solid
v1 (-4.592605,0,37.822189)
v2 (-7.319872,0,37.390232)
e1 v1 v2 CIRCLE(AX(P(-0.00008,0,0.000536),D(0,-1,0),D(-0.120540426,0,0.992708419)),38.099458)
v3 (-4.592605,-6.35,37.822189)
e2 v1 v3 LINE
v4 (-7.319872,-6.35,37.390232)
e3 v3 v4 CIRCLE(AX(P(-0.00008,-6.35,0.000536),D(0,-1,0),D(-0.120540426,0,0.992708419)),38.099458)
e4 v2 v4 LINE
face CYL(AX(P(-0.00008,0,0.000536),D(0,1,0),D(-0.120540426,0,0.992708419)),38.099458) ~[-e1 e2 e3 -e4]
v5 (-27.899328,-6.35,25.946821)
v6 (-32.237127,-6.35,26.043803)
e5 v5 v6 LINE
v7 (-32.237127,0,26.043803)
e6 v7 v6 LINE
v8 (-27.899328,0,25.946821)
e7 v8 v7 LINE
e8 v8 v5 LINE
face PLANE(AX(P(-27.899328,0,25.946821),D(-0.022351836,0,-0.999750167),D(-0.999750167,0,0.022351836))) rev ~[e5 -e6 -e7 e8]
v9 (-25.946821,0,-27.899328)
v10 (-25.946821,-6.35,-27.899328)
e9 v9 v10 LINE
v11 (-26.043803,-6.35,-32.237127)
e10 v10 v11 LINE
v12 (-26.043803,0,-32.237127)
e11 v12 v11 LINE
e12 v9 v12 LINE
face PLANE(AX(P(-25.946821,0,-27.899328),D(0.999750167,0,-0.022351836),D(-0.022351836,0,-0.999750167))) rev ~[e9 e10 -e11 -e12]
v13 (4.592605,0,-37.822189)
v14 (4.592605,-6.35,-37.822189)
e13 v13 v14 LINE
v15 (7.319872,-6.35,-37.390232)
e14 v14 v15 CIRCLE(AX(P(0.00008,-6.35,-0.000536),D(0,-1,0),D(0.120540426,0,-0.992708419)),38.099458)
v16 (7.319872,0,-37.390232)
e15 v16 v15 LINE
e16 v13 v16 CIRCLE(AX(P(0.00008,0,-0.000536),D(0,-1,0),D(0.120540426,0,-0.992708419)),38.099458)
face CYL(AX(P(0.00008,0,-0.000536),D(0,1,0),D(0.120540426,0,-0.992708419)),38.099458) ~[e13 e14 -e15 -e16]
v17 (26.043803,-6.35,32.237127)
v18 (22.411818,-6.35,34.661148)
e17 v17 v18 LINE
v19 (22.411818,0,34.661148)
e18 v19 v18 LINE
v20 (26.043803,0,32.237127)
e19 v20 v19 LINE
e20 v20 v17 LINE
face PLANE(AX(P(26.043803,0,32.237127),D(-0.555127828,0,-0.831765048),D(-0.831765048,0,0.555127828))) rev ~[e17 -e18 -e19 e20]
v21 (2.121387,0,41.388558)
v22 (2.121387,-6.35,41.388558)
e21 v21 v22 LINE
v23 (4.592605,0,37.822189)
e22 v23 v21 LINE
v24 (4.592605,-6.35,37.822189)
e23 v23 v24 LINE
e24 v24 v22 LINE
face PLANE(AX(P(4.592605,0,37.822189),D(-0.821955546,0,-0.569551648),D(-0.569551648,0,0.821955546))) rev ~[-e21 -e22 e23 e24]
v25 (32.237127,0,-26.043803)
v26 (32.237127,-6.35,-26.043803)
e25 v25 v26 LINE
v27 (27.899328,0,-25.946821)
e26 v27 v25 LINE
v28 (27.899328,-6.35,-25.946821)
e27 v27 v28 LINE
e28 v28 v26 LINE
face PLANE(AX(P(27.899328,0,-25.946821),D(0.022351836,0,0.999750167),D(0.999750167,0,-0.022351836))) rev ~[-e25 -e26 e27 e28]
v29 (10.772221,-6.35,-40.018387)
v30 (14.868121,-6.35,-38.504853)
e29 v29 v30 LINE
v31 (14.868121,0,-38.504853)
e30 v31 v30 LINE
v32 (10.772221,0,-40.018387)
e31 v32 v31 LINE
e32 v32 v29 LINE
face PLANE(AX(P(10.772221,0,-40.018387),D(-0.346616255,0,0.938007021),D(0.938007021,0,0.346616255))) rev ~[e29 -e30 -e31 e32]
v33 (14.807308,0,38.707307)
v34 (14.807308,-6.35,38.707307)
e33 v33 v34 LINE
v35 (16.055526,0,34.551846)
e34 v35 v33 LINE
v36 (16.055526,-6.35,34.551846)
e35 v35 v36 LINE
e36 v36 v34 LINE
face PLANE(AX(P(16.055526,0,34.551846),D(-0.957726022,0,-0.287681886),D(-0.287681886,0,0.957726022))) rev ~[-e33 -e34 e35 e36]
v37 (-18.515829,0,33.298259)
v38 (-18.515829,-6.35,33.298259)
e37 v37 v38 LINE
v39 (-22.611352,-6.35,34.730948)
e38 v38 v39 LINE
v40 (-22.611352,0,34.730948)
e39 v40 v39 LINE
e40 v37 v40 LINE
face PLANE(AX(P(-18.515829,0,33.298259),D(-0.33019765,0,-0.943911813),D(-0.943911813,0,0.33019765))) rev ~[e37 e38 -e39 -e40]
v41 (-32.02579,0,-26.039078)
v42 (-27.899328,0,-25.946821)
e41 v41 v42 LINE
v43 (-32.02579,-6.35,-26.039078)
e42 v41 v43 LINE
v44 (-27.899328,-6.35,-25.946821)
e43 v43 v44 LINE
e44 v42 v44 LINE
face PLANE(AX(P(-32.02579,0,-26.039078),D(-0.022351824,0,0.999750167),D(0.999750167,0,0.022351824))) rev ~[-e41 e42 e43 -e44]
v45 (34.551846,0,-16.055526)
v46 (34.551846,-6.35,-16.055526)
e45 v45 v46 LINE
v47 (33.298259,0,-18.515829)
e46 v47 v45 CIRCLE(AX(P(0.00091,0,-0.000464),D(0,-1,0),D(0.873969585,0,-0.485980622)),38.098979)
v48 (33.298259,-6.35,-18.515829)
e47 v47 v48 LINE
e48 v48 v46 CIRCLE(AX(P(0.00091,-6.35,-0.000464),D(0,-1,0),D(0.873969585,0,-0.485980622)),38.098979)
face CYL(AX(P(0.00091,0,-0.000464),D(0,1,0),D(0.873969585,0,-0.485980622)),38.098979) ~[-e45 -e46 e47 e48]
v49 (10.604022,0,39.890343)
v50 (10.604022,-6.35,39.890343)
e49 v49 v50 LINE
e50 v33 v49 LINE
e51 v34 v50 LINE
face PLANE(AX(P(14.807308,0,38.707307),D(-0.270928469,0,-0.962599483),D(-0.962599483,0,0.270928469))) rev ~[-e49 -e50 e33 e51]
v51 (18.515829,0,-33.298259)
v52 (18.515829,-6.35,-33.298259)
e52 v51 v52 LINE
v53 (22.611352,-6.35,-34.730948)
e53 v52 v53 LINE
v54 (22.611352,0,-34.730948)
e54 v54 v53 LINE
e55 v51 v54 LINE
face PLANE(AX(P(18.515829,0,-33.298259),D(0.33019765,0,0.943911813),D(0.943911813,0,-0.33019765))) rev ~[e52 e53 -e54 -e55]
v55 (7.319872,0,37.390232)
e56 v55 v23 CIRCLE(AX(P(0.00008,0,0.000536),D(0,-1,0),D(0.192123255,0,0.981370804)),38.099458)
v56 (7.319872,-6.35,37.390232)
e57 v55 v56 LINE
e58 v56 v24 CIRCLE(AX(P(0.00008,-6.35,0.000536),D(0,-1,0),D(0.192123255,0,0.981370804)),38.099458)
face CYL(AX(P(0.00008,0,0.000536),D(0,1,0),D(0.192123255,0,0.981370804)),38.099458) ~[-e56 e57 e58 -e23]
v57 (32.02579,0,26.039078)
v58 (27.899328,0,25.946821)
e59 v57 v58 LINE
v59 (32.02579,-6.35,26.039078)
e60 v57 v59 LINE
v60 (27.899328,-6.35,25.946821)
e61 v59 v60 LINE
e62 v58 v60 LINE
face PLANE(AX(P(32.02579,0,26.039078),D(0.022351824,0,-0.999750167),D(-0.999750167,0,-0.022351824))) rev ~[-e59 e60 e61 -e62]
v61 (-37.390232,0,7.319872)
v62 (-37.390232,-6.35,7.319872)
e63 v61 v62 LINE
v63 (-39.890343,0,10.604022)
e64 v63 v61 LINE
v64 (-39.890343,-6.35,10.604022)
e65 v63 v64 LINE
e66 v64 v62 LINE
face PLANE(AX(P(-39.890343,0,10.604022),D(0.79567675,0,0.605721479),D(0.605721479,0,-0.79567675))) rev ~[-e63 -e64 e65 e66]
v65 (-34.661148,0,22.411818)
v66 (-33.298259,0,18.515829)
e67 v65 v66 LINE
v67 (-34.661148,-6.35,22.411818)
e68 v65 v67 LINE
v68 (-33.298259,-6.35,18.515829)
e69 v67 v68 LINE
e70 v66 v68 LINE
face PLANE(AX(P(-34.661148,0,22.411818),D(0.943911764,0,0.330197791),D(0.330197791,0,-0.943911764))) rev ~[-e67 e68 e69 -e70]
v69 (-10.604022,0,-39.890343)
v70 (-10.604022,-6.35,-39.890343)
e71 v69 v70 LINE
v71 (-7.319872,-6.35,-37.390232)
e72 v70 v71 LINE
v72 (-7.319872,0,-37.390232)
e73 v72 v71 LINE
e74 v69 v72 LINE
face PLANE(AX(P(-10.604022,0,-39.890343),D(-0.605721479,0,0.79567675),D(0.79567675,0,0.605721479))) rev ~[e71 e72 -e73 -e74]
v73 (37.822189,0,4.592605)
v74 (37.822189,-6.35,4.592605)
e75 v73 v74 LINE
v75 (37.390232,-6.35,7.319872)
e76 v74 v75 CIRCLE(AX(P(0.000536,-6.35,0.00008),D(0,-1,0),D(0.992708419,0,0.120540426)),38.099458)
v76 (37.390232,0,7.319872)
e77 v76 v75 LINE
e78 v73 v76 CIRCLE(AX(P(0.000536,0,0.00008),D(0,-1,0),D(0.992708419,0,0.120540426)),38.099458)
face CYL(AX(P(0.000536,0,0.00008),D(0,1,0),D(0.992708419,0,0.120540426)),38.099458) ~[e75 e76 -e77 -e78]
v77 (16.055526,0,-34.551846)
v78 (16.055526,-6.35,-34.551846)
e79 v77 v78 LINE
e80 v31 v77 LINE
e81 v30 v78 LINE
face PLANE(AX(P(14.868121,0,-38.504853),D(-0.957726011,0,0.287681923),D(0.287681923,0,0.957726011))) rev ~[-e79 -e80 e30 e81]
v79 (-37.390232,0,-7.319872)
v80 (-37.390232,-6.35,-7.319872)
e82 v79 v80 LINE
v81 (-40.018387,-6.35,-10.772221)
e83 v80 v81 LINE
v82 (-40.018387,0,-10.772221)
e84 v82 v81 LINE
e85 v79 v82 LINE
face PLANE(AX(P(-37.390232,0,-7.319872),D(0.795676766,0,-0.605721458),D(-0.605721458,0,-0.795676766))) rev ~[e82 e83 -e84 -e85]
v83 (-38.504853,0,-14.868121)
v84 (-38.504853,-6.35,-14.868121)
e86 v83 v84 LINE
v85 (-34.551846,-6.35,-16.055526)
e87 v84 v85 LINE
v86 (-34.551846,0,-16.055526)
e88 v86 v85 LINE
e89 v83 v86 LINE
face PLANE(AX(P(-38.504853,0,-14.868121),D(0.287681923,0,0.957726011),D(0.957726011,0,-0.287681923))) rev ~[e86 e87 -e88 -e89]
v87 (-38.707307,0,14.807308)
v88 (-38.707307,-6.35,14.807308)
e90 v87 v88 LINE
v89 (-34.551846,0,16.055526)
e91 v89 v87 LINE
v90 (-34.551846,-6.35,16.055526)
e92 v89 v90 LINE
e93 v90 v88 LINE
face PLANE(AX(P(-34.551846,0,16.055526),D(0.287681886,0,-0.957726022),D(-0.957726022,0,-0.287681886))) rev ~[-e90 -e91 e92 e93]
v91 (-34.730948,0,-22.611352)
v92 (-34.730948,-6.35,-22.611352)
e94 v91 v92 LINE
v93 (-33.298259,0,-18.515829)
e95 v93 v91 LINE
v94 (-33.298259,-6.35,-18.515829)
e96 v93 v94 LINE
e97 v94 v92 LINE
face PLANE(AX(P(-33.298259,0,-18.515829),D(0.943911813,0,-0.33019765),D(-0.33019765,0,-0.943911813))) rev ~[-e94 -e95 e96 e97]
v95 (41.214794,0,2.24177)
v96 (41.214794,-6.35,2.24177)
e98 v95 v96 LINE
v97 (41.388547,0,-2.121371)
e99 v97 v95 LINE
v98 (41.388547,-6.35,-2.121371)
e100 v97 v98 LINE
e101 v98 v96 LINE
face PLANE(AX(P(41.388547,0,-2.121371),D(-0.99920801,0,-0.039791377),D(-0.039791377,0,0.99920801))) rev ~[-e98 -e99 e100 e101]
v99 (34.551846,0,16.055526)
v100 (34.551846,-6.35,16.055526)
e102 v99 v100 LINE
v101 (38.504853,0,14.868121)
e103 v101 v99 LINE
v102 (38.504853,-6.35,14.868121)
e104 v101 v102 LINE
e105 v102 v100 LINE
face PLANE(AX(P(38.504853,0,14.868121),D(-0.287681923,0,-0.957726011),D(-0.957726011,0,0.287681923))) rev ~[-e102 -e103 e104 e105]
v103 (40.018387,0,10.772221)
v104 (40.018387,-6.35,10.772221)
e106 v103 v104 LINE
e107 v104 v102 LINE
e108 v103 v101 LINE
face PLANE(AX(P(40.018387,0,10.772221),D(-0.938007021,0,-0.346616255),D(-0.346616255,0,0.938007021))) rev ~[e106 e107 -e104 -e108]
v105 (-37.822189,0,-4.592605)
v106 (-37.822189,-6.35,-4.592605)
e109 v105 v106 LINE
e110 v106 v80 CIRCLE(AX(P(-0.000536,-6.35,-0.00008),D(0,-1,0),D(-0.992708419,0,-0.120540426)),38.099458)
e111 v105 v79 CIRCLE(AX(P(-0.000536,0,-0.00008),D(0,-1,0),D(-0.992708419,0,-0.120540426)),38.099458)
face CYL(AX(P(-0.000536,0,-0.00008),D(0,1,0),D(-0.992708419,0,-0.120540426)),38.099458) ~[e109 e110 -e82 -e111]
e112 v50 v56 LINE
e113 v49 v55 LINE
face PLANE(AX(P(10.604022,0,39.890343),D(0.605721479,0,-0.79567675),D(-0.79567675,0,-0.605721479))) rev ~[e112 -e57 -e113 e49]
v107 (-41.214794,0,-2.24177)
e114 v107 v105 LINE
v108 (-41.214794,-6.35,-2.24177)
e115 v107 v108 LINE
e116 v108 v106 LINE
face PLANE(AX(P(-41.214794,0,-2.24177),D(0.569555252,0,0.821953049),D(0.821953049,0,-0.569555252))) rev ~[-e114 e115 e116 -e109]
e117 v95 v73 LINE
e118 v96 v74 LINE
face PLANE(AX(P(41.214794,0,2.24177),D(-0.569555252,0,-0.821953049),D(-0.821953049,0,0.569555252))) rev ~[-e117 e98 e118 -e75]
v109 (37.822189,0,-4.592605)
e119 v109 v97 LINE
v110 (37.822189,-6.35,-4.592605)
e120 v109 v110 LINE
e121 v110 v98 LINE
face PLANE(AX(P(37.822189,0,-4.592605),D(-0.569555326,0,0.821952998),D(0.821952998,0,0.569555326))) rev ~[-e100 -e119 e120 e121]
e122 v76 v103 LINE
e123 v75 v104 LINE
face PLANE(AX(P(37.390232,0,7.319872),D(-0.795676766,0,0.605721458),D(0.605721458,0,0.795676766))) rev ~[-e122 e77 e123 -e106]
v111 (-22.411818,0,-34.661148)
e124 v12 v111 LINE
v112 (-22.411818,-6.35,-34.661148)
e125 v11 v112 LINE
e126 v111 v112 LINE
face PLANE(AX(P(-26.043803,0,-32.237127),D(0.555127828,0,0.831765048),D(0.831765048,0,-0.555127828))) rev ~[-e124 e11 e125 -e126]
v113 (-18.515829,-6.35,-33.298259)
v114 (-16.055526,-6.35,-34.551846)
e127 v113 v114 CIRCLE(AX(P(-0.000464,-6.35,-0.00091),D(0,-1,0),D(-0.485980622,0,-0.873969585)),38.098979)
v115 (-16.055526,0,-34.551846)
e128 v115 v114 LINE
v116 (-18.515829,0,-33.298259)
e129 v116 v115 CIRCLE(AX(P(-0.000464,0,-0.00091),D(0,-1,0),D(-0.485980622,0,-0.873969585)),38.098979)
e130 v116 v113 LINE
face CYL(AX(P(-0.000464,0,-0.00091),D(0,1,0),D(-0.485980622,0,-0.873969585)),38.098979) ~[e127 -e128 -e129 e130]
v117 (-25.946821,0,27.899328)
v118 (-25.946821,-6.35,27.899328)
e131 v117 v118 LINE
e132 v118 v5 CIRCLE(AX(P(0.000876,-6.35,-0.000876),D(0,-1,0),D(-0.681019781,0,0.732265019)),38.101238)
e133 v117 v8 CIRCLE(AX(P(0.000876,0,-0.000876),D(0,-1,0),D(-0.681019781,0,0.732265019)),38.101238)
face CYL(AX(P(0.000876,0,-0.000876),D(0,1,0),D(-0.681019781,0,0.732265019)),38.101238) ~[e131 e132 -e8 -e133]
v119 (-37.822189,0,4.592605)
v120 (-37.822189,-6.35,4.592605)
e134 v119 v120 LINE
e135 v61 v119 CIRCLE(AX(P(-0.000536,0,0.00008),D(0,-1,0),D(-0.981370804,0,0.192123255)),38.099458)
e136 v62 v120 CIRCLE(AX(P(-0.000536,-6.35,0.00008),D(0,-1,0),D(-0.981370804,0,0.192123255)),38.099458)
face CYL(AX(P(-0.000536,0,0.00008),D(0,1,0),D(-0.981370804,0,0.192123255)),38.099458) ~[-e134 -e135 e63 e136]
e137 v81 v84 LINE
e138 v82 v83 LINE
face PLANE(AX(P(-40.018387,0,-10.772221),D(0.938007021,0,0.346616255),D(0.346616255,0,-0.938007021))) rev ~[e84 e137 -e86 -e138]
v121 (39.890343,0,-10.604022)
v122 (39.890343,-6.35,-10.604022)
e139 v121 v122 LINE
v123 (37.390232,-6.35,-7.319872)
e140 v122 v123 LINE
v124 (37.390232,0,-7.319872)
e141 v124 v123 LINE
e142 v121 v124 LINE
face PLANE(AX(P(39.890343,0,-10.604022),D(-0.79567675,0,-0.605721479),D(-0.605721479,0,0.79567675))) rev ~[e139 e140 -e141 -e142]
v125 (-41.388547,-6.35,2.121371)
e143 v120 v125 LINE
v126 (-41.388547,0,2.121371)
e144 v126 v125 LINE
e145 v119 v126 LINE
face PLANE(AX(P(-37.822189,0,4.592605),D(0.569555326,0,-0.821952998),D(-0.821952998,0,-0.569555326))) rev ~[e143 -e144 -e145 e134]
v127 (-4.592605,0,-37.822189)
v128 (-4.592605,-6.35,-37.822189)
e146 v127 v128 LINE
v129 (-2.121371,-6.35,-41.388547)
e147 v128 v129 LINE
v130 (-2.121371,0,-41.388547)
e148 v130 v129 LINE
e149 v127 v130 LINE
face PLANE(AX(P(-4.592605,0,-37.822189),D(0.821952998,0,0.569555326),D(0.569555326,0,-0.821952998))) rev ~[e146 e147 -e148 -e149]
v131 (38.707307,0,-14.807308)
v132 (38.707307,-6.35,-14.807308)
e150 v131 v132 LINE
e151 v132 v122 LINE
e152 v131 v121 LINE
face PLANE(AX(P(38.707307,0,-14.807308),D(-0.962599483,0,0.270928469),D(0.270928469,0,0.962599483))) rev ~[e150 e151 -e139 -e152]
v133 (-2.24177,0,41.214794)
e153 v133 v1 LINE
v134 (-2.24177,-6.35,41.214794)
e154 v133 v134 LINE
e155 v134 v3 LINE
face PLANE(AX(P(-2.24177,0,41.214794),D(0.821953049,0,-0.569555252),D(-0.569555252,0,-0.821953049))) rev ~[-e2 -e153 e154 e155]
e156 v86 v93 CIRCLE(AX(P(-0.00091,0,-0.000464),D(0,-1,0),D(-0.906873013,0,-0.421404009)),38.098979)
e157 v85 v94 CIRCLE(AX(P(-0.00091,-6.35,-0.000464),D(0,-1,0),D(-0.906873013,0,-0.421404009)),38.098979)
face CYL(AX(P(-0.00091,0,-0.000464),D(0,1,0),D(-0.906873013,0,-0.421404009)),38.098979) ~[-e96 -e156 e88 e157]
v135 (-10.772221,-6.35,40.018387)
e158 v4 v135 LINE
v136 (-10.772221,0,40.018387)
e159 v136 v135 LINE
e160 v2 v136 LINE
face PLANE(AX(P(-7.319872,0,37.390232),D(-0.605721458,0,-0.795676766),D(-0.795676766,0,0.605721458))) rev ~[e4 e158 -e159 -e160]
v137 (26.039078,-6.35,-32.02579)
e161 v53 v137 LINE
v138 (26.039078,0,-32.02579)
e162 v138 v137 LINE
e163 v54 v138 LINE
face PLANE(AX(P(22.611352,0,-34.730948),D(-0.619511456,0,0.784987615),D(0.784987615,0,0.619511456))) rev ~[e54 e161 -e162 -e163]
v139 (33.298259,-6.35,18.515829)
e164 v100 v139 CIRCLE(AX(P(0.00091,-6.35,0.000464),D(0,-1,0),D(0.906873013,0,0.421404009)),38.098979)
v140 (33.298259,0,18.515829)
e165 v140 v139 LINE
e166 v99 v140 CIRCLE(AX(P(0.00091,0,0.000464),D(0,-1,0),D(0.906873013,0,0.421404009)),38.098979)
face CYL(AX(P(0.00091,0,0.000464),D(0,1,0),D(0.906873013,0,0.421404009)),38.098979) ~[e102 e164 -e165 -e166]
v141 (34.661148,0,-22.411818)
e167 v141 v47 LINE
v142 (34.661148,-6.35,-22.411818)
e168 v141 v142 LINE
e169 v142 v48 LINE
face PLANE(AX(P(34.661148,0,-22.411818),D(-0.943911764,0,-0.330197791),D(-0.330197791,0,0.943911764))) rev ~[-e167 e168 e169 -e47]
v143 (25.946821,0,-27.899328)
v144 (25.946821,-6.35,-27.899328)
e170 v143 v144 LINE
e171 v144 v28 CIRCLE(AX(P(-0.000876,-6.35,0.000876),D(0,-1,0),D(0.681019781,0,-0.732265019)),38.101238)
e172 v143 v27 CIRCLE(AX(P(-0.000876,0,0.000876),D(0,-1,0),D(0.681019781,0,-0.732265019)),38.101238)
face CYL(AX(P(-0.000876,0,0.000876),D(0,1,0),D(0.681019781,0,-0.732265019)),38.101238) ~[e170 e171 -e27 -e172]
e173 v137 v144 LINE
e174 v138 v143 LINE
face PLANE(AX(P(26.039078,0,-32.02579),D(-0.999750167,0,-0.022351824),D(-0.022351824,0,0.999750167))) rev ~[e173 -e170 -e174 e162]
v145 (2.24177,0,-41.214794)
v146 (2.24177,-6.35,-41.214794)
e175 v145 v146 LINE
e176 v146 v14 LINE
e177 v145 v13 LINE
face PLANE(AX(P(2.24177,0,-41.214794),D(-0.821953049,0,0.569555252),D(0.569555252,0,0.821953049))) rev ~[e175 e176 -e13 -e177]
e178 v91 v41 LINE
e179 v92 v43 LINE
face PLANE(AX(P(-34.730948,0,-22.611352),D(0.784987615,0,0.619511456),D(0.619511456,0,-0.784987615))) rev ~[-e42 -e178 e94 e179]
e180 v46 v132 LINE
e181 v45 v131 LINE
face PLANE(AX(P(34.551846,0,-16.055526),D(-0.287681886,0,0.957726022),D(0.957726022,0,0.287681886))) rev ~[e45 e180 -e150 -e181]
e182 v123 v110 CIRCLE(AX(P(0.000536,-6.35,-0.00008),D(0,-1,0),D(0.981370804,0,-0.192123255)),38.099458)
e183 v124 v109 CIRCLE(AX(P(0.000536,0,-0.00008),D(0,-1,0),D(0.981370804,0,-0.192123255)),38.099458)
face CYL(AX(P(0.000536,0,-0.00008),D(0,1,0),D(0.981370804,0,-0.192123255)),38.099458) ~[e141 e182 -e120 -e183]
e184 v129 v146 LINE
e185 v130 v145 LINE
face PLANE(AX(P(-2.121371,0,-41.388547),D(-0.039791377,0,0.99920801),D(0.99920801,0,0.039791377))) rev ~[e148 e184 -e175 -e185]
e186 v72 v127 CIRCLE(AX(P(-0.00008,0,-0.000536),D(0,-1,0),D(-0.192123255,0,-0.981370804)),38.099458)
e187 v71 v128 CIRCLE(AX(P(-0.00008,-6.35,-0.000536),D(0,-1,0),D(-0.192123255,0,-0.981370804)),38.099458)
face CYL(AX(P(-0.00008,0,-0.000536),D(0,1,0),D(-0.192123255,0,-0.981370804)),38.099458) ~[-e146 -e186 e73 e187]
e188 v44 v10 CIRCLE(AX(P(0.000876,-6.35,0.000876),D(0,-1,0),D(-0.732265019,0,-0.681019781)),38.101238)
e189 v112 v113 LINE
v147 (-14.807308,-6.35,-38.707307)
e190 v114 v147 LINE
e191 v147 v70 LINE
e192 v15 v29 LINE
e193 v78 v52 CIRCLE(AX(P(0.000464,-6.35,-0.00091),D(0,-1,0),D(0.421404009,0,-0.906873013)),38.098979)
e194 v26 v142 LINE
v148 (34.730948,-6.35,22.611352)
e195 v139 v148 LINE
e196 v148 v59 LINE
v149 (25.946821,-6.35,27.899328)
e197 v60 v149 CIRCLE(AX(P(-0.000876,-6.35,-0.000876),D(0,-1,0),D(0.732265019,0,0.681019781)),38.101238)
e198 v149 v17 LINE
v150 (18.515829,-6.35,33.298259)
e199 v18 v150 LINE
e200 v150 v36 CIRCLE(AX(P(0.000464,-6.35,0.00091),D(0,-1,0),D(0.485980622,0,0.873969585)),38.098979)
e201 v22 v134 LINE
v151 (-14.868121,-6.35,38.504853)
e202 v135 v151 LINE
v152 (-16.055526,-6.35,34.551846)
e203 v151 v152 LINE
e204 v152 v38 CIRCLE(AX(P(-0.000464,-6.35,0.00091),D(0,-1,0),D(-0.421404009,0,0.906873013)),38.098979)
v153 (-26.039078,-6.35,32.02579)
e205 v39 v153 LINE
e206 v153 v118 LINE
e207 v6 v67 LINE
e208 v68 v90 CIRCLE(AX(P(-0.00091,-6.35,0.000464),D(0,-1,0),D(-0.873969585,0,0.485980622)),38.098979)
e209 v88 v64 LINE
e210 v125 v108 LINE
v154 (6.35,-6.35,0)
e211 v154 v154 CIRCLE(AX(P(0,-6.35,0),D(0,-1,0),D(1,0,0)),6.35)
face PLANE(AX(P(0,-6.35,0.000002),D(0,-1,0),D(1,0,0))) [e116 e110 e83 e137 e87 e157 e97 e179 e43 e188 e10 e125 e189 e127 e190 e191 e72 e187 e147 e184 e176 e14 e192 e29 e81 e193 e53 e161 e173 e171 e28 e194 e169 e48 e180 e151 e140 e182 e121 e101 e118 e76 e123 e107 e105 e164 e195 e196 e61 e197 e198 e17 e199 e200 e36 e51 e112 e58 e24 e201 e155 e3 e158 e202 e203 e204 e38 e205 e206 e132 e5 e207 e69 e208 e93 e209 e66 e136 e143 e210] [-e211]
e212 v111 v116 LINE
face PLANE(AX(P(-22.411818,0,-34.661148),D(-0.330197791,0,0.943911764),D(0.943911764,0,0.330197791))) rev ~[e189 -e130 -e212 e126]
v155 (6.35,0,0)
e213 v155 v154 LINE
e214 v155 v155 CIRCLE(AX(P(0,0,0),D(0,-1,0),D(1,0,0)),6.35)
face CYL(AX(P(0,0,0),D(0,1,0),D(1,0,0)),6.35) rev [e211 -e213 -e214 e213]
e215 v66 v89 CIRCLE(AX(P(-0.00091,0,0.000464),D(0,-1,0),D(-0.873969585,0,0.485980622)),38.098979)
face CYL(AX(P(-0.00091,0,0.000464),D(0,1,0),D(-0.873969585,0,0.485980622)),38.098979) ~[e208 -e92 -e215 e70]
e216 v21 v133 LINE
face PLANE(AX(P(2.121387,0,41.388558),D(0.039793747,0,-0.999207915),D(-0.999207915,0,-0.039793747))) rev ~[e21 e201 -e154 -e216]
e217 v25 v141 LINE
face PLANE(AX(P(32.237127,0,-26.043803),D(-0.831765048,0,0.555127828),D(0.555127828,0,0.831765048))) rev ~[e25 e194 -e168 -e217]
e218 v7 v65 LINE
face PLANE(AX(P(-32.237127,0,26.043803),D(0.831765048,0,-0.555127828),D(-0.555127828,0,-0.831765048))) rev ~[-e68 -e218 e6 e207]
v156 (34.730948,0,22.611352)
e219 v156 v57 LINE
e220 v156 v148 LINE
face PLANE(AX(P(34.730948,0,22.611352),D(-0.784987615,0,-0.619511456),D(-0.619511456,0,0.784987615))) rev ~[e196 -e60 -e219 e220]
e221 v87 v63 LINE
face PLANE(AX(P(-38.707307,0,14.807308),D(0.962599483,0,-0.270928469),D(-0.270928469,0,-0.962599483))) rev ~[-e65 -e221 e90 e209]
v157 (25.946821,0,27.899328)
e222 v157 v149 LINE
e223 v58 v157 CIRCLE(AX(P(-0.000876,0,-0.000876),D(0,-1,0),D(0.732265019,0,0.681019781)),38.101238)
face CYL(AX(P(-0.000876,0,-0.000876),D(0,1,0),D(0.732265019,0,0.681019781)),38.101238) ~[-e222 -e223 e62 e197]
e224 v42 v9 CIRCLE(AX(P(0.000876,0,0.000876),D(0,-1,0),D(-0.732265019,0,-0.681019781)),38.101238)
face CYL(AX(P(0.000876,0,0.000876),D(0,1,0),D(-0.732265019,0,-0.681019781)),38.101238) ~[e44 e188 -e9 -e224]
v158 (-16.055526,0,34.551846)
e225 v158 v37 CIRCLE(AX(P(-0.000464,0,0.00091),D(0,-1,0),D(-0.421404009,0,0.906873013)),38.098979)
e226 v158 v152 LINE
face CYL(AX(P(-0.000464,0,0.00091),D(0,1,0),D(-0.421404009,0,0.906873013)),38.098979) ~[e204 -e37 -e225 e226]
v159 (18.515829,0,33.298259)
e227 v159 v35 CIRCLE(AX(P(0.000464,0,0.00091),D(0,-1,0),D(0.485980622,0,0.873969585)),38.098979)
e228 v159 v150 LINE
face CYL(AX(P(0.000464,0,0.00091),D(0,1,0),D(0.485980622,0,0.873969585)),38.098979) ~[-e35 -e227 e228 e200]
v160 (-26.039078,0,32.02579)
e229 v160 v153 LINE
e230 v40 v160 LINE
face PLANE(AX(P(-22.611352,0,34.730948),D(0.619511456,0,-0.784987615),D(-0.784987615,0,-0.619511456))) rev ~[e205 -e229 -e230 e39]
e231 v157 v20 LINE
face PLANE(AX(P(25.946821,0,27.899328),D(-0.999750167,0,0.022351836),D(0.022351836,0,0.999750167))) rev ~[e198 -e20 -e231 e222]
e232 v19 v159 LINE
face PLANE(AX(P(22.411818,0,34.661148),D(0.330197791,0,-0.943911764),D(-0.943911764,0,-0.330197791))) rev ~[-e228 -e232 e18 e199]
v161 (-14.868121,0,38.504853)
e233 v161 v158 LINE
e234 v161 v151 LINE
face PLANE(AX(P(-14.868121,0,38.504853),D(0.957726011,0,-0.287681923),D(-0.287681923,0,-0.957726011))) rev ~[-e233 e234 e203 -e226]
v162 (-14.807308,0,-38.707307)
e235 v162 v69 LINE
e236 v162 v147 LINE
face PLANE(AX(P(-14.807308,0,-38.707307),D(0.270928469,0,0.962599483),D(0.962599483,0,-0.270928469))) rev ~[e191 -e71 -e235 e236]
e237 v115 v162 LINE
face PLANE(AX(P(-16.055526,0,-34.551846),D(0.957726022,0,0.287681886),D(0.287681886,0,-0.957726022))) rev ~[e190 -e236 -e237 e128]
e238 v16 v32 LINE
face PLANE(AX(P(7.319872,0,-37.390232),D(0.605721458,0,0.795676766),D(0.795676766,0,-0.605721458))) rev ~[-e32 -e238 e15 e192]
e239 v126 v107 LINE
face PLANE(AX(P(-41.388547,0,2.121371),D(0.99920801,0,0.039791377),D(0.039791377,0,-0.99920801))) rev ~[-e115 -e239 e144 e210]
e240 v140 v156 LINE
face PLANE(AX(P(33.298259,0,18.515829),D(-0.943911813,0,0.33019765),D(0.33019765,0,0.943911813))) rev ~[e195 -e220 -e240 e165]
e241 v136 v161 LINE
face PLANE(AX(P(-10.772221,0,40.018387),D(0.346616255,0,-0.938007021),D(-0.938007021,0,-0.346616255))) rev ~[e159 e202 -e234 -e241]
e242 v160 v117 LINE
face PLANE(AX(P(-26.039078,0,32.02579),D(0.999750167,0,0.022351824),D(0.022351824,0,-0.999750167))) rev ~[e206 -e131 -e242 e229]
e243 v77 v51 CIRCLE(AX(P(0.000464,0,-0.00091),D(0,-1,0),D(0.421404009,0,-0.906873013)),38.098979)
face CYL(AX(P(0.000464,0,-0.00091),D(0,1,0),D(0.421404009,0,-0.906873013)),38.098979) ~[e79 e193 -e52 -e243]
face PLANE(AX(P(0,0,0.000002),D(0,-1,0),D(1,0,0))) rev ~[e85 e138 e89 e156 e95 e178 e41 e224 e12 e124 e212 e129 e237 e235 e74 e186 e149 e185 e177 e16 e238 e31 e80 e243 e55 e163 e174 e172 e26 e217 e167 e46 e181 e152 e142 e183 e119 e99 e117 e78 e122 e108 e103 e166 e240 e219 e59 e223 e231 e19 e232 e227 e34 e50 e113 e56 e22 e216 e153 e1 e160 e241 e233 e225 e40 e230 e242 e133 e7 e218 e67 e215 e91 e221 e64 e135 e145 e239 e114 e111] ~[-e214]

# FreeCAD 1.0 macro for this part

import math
import FreeCAD as App
import Part
import Sketcher
from FreeCAD import Vector
Q = App.Units.Quantity

doc = App.newDocument("Part")
body = doc.addObject("PartDesign::Body", "Body")

sketch1 = doc.addObject("Sketcher::SketchObject", "Sketch")
body.addObject(sketch1)
sketch1.AttachmentSupport = (doc.XZ_Plane, [""])
sketch1.MapMode = "FlatFace"
sketch1.addGeometry(Part.LineSegment(Vector(-2.24177, 41.214794, 0), Vector(-4.592605, 37.822189, 0)), False)
sketch1.addGeometry(Part.ArcOfCircle(Part.Circle(Vector(-0.00008, 0.000536, 0), Vector(0, 0, 1), 38.099458), math.radians(96.923293), math.radians(101.076721)), False)
sketch1.addGeometry(Part.LineSegment(Vector(-7.319872, 37.390232, 0), Vector(-10.772221, 40.018387, 0)), False)
sketch1.addGeometry(Part.LineSegment(Vector(-10.772221, 40.018387, 0), Vector(-14.868121, 38.504853, 0)), False)
sketch1.addGeometry(Part.LineSegment(Vector(-14.868121, 38.504853, 0), Vector(-16.055526, 34.551846, 0)), False)
sketch1.addGeometry(Part.ArcOfCircle(Part.Circle(Vector(-0.000464, 0.00091, 0), Vector(0, 0, 1), 38.098979), math.radians(114.92326), math.radians(119.07674)), False)
sketch1.addGeometry(Part.LineSegment(Vector(-18.515829, 33.298259, 0), Vector(-22.611352, 34.730948, 0)), False)
sketch1.addGeometry(Part.LineSegment(Vector(-22.611352, 34.730948, 0), Vector(-26.039078, 32.02579, 0)), False)
sketch1.addGeometry(Part.LineSegment(Vector(-26.039078, 32.02579, 0), Vector(-25.946821, 27.899328, 0)), False)
sketch1.addGeometry(Part.ArcOfCircle(Part.Circle(Vector(0.000876, -0.000876, 0), Vector(0, 0, 1), 38.101238), math.radians(132.923384), math.radians(137.076616)), False)
sketch1.addGeometry(Part.LineSegment(Vector(-27.899328, 25.946821, 0), Vector(-32.237127, 26.043803, 0)), False)
sketch1.addGeometry(Part.LineSegment(Vector(-32.237127, 26.043803, 0), Vector(-34.661148, 22.411818, 0)), False)
sketch1.addGeometry(Part.LineSegment(Vector(-34.661148, 22.411818, 0), Vector(-33.298259, 18.515829, 0)), False)
sketch1.addGeometry(Part.ArcOfCircle(Part.Circle(Vector(-0.00091, 0.000464, 0), Vector(0, 0, 1), 38.098979), math.radians(150.92326), math.radians(155.07674)), False)
sketch1.addGeometry(Part.LineSegment(Vector(-34.551846, 16.055526, 0), Vector(-38.707307, 14.807308, 0)), False)
sketch1.addGeometry(Part.LineSegment(Vector(-38.707307, 14.807308, 0), Vector(-39.890343, 10.604022, 0)), False)
sketch1.addGeometry(Part.LineSegment(Vector(-39.890343, 10.604022, 0), Vector(-37.390232, 7.319872, 0)), False)
sketch1.addGeometry(Part.ArcOfCircle(Part.Circle(Vector(-0.000536, 0.00008, 0), Vector(0, 0, 1), 38.099458), math.radians(168.923279), math.radians(173.076707)), False)
sketch1.addGeometry(Part.LineSegment(Vector(-37.822189, 4.592605, 0), Vector(-41.388547, 2.121371, 0)), False)
sketch1.addGeometry(Part.LineSegment(Vector(-41.388547, 2.121371, 0), Vector(-41.214794, -2.24177, 0)), False)
sketch1.addGeometry(Part.LineSegment(Vector(-41.214794, -2.24177, 0), Vector(-37.822189, -4.592605, 0)), False)
sketch1.addGeometry(Part.ArcOfCircle(Part.Circle(Vector(-0.000536, -0.00008, 0), Vector(0, 0, 1), 38.099458), math.radians(-173.076707), math.radians(-168.923279)), False)
sketch1.addGeometry(Part.LineSegment(Vector(-37.390232, -7.319872, 0), Vector(-40.018387, -10.772221, 0)), False)
sketch1.addGeometry(Part.LineSegment(Vector(-40.018387, -10.772221, 0), Vector(-38.504853, -14.868121, 0)), False)
sketch1.addGeometry(Part.LineSegment(Vector(-38.504853, -14.868121, 0), Vector(-34.551846, -16.055526, 0)), False)
sketch1.addGeometry(Part.ArcOfCircle(Part.Circle(Vector(-0.00091, -0.000464, 0), Vector(0, 0, 1), 38.098979), math.radians(-155.07674), math.radians(-150.92326)), False)
sketch1.addGeometry(Part.LineSegment(Vector(-33.298259, -18.515829, 0), Vector(-34.730948, -22.611352, 0)), False)
sketch1.addGeometry(Part.LineSegment(Vector(-34.730948, -22.611352, 0), Vector(-32.02579, -26.039078, 0)), False)
sketch1.addGeometry(Part.LineSegment(Vector(-32.02579, -26.039078, 0), Vector(-27.899328, -25.946821, 0)), False)
sketch1.addGeometry(Part.ArcOfCircle(Part.Circle(Vector(0.000876, 0.000876, 0), Vector(0, 0, 1), 38.101238), math.radians(-137.076616), math.radians(-132.923384)), False)
sketch1.addGeometry(Part.LineSegment(Vector(-25.946821, -27.899328, 0), Vector(-26.043803, -32.237127, 0)), False)
sketch1.addGeometry(Part.LineSegment(Vector(-26.043803, -32.237127, 0), Vector(-22.411818, -34.661148, 0)), False)
sketch1.addGeometry(Part.LineSegment(Vector(-22.411818, -34.661148, 0), Vector(-18.515829, -33.298259, 0)), False)
sketch1.addGeometry(Part.ArcOfCircle(Part.Circle(Vector(-0.000464, -0.00091, 0), Vector(0, 0, 1), 38.098979), math.radians(-119.07674), math.radians(-114.92326)), False)
sketch1.addGeometry(Part.LineSegment(Vector(-16.055526, -34.551846, 0), Vector(-14.807308, -38.707307, 0)), False)
sketch1.addGeometry(Part.LineSegment(Vector(-14.807308, -38.707307, 0), Vector(-10.604022, -39.890343, 0)), False)
sketch1.addGeometry(Part.LineSegment(Vector(-10.604022, -39.890343, 0), Vector(-7.319872, -37.390232, 0)), False)
sketch1.addGeometry(Part.ArcOfCircle(Part.Circle(Vector(-0.00008, -0.000536, 0), Vector(0, 0, 1), 38.099458), math.radians(-101.076721), math.radians(-96.923293)), False)
sketch1.addGeometry(Part.LineSegment(Vector(-4.592605, -37.822189, 0), Vector(-2.121371, -41.388547, 0)), False)
sketch1.addGeometry(Part.LineSegment(Vector(-2.121371, -41.388547, 0), Vector(2.24177, -41.214794, 0)), False)
sketch1.addGeometry(Part.LineSegment(Vector(2.24177, -41.214794, 0), Vector(4.592605, -37.822189, 0)), False)
sketch1.addGeometry(Part.ArcOfCircle(Part.Circle(Vector(0.00008, -0.000536, 0), Vector(0, 0, 1), 38.099458), math.radians(-83.076707), math.radians(-78.923279)), False)
sketch1.addGeometry(Part.LineSegment(Vector(7.319872, -37.390232, 0), Vector(10.772221, -40.018387, 0)), False)
sketch1.addGeometry(Part.LineSegment(Vector(10.772221, -40.018387, 0), Vector(14.868121, -38.504853, 0)), False)
sketch1.addGeometry(Part.LineSegment(Vector(14.868121, -38.504853, 0), Vector(16.055526, -34.551846, 0)), False)
sketch1.addGeometry(Part.ArcOfCircle(Part.Circle(Vector(0.000464, -0.00091, 0), Vector(0, 0, 1), 38.098979), math.radians(-65.07674), math.radians(-60.92326)), False)
sketch1.addGeometry(Part.LineSegment(Vector(18.515829, -33.298259, 0), Vector(22.611352, -34.730948, 0)), False)
sketch1.addGeometry(Part.LineSegment(Vector(22.611352, -34.730948, 0), Vector(26.039078, -32.02579, 0)), False)
sketch1.addGeometry(Part.LineSegment(Vector(26.039078, -32.02579, 0), Vector(25.946821, -27.899328, 0)), False)
sketch1.addGeometry(Part.ArcOfCircle(Part.Circle(Vector(-0.000876, 0.000876, 0), Vector(0, 0, 1), 38.101238), math.radians(-47.076616), math.radians(-42.923384)), False)
sketch1.addGeometry(Part.LineSegment(Vector(27.899328, -25.946821, 0), Vector(32.237127, -26.043803, 0)), False)
sketch1.addGeometry(Part.LineSegment(Vector(32.237127, -26.043803, 0), Vector(34.661148, -22.411818, 0)), False)
sketch1.addGeometry(Part.LineSegment(Vector(34.661148, -22.411818, 0), Vector(33.298259, -18.515829, 0)), False)
sketch1.addGeometry(Part.ArcOfCircle(Part.Circle(Vector(0.00091, -0.000464, 0), Vector(0, 0, 1), 38.098979), math.radians(-29.07674), math.radians(-24.92326)), False)
sketch1.addGeometry(Part.LineSegment(Vector(34.551846, -16.055526, 0), Vector(38.707307, -14.807308, 0)), False)
sketch1.addGeometry(Part.LineSegment(Vector(38.707307, -14.807308, 0), Vector(39.890343, -10.604022, 0)), False)
sketch1.addGeometry(Part.LineSegment(Vector(39.890343, -10.604022, 0), Vector(37.390232, -7.319872, 0)), False)
sketch1.addGeometry(Part.ArcOfCircle(Part.Circle(Vector(0.000536, -0.00008, 0), Vector(0, 0, 1), 38.099458), math.radians(-11.076721), math.radians(-6.923293)), False)
sketch1.addGeometry(Part.LineSegment(Vector(37.822189, -4.592605, 0), Vector(41.388547, -2.121371, 0)), False)
sketch1.addGeometry(Part.LineSegment(Vector(41.388547, -2.121371, 0), Vector(41.214794, 2.24177, 0)), False)
sketch1.addGeometry(Part.LineSegment(Vector(41.214794, 2.24177, 0), Vector(37.822189, 4.592605, 0)), False)
sketch1.addGeometry(Part.ArcOfCircle(Part.Circle(Vector(0.000536, 0.00008, 0), Vector(0, 0, 1), 38.099458), math.radians(6.923293), math.radians(11.076721)), False)
sketch1.addGeometry(Part.LineSegment(Vector(37.390232, 7.319872, 0), Vector(40.018387, 10.772221, 0)), False)
sketch1.addGeometry(Part.LineSegment(Vector(40.018387, 10.772221, 0), Vector(38.504853, 14.868121, 0)), False)
sketch1.addGeometry(Part.LineSegment(Vector(38.504853, 14.868121, 0), Vector(34.551846, 16.055526, 0)), False)
sketch1.addGeometry(Part.ArcOfCircle(Part.Circle(Vector(0.00091, 0.000464, 0), Vector(0, 0, 1), 38.098979), math.radians(24.92326), math.radians(29.07674)), False)
sketch1.addGeometry(Part.LineSegment(Vector(33.298259, 18.515829, 0), Vector(34.730948, 22.611352, 0)), False)
sketch1.addGeometry(Part.LineSegment(Vector(34.730948, 22.611352, 0), Vector(32.02579, 26.039078, 0)), False)
sketch1.addGeometry(Part.LineSegment(Vector(32.02579, 26.039078, 0), Vector(27.899328, 25.946821, 0)), False)
sketch1.addGeometry(Part.ArcOfCircle(Part.Circle(Vector(-0.000876, -0.000876, 0), Vector(0, 0, 1), 38.101238), math.radians(42.923384), math.radians(47.076616)), False)
sketch1.addGeometry(Part.LineSegment(Vector(25.946821, 27.899328, 0), Vector(26.043803, 32.237127, 0)), False)
sketch1.addGeometry(Part.LineSegment(Vector(26.043803, 32.237127, 0), Vector(22.411818, 34.661148, 0)), False)
sketch1.addGeometry(Part.LineSegment(Vector(22.411818, 34.661148, 0), Vector(18.515829, 33.298259, 0)), False)
sketch1.addGeometry(Part.ArcOfCircle(Part.Circle(Vector(0.000464, 0.00091, 0), Vector(0, 0, 1), 38.098979), math.radians(60.92326), math.radians(65.07674)), False)
sketch1.addGeometry(Part.LineSegment(Vector(16.055526, 34.551846, 0), Vector(14.807308, 38.707307, 0)), False)
sketch1.addGeometry(Part.LineSegment(Vector(14.807308, 38.707307, 0), Vector(10.604022, 39.890343, 0)), False)
sketch1.addGeometry(Part.LineSegment(Vector(10.604022, 39.890343, 0), Vector(7.319872, 37.390232, 0)), False)
sketch1.addGeometry(Part.ArcOfCircle(Part.Circle(Vector(0.00008, 0.000536, 0), Vector(0, 0, 1), 38.099458), math.radians(78.923279), math.radians(83.076707)), False)
sketch1.addGeometry(Part.LineSegment(Vector(4.592605, 37.822189, 0), Vector(2.121387, 41.388558, 0)), False)
sketch1.addGeometry(Part.LineSegment(Vector(2.121387, 41.388558, 0), Vector(-2.24177, 41.214794, 0)), False)
sketch1.addGeometry(Part.Circle(Vector(0, 0, 0), Vector(0, 0, 1), 6.35), False)
sketch1.addConstraint(Sketcher.Constraint("Coincident", 0, 2, 1, 1))
sketch1.addConstraint(Sketcher.Constraint("Coincident", 1, 2, 2, 1))
sketch1.addConstraint(Sketcher.Constraint("Coincident", 2, 2, 3, 1))
sketch1.addConstraint(Sketcher.Constraint("Coincident", 3, 2, 4, 1))
sketch1.addConstraint(Sketcher.Constraint("Coincident", 4, 2, 5, 1))
sketch1.addConstraint(Sketcher.Constraint("Coincident", 5, 2, 6, 1))
sketch1.addConstraint(Sketcher.Constraint("Coincident", 6, 2, 7, 1))
sketch1.addConstraint(Sketcher.Constraint("Coincident", 7, 2, 8, 1))
sketch1.addConstraint(Sketcher.Constraint("Coincident", 8, 2, 9, 1))
sketch1.addConstraint(Sketcher.Constraint("Coincident", 9, 2, 10, 1))
sketch1.addConstraint(Sketcher.Constraint("Coincident", 10, 2, 11, 1))
sketch1.addConstraint(Sketcher.Constraint("Coincident", 11, 2, 12, 1))
sketch1.addConstraint(Sketcher.Constraint("Coincident", 12, 2, 13, 1))
sketch1.addConstraint(Sketcher.Constraint("Coincident", 13, 2, 14, 1))
sketch1.addConstraint(Sketcher.Constraint("Coincident", 14, 2, 15, 1))
sketch1.addConstraint(Sketcher.Constraint("Coincident", 15, 2, 16, 1))
sketch1.addConstraint(Sketcher.Constraint("Coincident", 16, 2, 17, 1))
sketch1.addConstraint(Sketcher.Constraint("Coincident", 17, 2, 18, 1))
sketch1.addConstraint(Sketcher.Constraint("Coincident", 18, 2, 19, 1))
sketch1.addConstraint(Sketcher.Constraint("Coincident", 19, 2, 20, 1))
sketch1.addConstraint(Sketcher.Constraint("Coincident", 20, 2, 21, 1))
sketch1.addConstraint(Sketcher.Constraint("Coincident", 21, 2, 22, 1))
sketch1.addConstraint(Sketcher.Constraint("Coincident", 22, 2, 23, 1))
sketch1.addConstraint(Sketcher.Constraint("Coincident", 23, 2, 24, 1))
sketch1.addConstraint(Sketcher.Constraint("Coincident", 24, 2, 25, 1))
sketch1.addConstraint(Sketcher.Constraint("Coincident", 25, 2, 26, 1))
sketch1.addConstraint(Sketcher.Constraint("Coincident", 26, 2, 27, 1))
sketch1.addConstraint(Sketcher.Constraint("Coincident", 27, 2, 28, 1))
sketch1.addConstraint(Sketcher.Constraint("Coincident", 28, 2, 29, 1))
sketch1.addConstraint(Sketcher.Constraint("Coincident", 29, 2, 30, 1))
sketch1.addConstraint(Sketcher.Constraint("Coincident", 30, 2, 31, 1))
sketch1.addConstraint(Sketcher.Constraint("Coincident", 31, 2, 32, 1))
sketch1.addConstraint(Sketcher.Constraint("Coincident", 32, 2, 33, 1))
sketch1.addConstraint(Sketcher.Constraint("Coincident", 33, 2, 34, 1))
sketch1.addConstraint(Sketcher.Constraint("Coincident", 34, 2, 35, 1))
sketch1.addConstraint(Sketcher.Constraint("Coincident", 35, 2, 36, 1))
sketch1.addConstraint(Sketcher.Constraint("Coincident", 36, 2, 37, 1))
sketch1.addConstraint(Sketcher.Constraint("Coincident", 37, 2, 38, 1))
sketch1.addConstraint(Sketcher.Constraint("Coincident", 38, 2, 39, 1))
sketch1.addConstraint(Sketcher.Constraint("Coincident", 39, 2, 40, 1))
sketch1.addConstraint(Sketcher.Constraint("Coincident", 40, 2, 41, 1))
sketch1.addConstraint(Sketcher.Constraint("Coincident", 41, 2, 42, 1))
sketch1.addConstraint(Sketcher.Constraint("Coincident", 42, 2, 43, 1))
sketch1.addConstraint(Sketcher.Constraint("Coincident", 43, 2, 44, 1))
sketch1.addConstraint(Sketcher.Constraint("Coincident", 44, 2, 45, 1))
sketch1.addConstraint(Sketcher.Constraint("Coincident", 45, 2, 46, 1))
sketch1.addConstraint(Sketcher.Constraint("Coincident", 46, 2, 47, 1))
sketch1.addConstraint(Sketcher.Constraint("Coincident", 47, 2, 48, 1))
sketch1.addConstraint(Sketcher.Constraint("Coincident", 48, 2, 49, 1))
sketch1.addConstraint(Sketcher.Constraint("Coincident", 49, 2, 50, 1))
sketch1.addConstraint(Sketcher.Constraint("Coincident", 50, 2, 51, 1))
sketch1.addConstraint(Sketcher.Constraint("Coincident", 51, 2, 52, 1))
sketch1.addConstraint(Sketcher.Constraint("Coincident", 52, 2, 53, 1))
sketch1.addConstraint(Sketcher.Constraint("Coincident", 53, 2, 54, 1))
sketch1.addConstraint(Sketcher.Constraint("Coincident", 54, 2, 55, 1))
sketch1.addConstraint(Sketcher.Constraint("Coincident", 55, 2, 56, 1))
sketch1.addConstraint(Sketcher.Constraint("Coincident", 56, 2, 57, 1))
sketch1.addConstraint(Sketcher.Constraint("Coincident", 57, 2, 58, 1))
sketch1.addConstraint(Sketcher.Constraint("Coincident", 58, 2, 59, 1))
sketch1.addConstraint(Sketcher.Constraint("Coincident", 59, 2, 60, 1))
sketch1.addConstraint(Sketcher.Constraint("Coincident", 60, 2, 61, 1))
sketch1.addConstraint(Sketcher.Constraint("Coincident", 61, 2, 62, 1))
sketch1.addConstraint(Sketcher.Constraint("Coincident", 62, 2, 63, 1))
sketch1.addConstraint(Sketcher.Constraint("Coincident", 63, 2, 64, 1))
sketch1.addConstraint(Sketcher.Constraint("Coincident", 64, 2, 65, 1))
sketch1.addConstraint(Sketcher.Constraint("Coincident", 65, 2, 66, 1))
sketch1.addConstraint(Sketcher.Constraint("Coincident", 66, 2, 67, 1))
sketch1.addConstraint(Sketcher.Constraint("Coincident", 67, 2, 68, 1))
sketch1.addConstraint(Sketcher.Constraint("Coincident", 68, 2, 69, 1))
sketch1.addConstraint(Sketcher.Constraint("Coincident", 69, 2, 70, 1))
sketch1.addConstraint(Sketcher.Constraint("Coincident", 70, 2, 71, 1))
sketch1.addConstraint(Sketcher.Constraint("Coincident", 71, 2, 72, 1))
sketch1.addConstraint(Sketcher.Constraint("Coincident", 72, 2, 73, 1))
sketch1.addConstraint(Sketcher.Constraint("Coincident", 73, 2, 74, 1))
sketch1.addConstraint(Sketcher.Constraint("Coincident", 74, 2, 75, 1))
sketch1.addConstraint(Sketcher.Constraint("Coincident", 75, 2, 76, 1))
sketch1.addConstraint(Sketcher.Constraint("Coincident", 76, 2, 77, 1))
sketch1.addConstraint(Sketcher.Constraint("Coincident", 77, 2, 78, 1))
sketch1.addConstraint(Sketcher.Constraint("Coincident", 78, 2, 79, 1))
sketch1.addConstraint(Sketcher.Constraint("Coincident", 79, 2, 0, 1))
sketch1.addConstraint(Sketcher.Constraint("Coincident", 80, 3, -1, 1))
sketch1.addConstraint(Sketcher.Constraint("Equal", 5, 13))
sketch1.addConstraint(Sketcher.Constraint("Equal", 1, 17))
sketch1.addConstraint(Sketcher.Constraint("Equal", 17, 21))
sketch1.addConstraint(Sketcher.Constraint("Equal", 13, 25))
sketch1.addConstraint(Sketcher.Constraint("Equal", 9, 29))
sketch1.addConstraint(Sketcher.Constraint("Equal", 25, 33))
sketch1.addConstraint(Sketcher.Constraint("Equal", 21, 37))
sketch1.addConstraint(Sketcher.Constraint("Equal", 37, 41))
sketch1.addConstraint(Sketcher.Constraint("Equal", 33, 45))
sketch1.addConstraint(Sketcher.Constraint("Equal", 29, 49))
sketch1.addConstraint(Sketcher.Constraint("Equal", 45, 53))
sketch1.addConstraint(Sketcher.Constraint("Equal", 41, 57))
sketch1.addConstraint(Sketcher.Constraint("Equal", 57, 61))
sketch1.addConstraint(Sketcher.Constraint("Equal", 53, 65))
sketch1.addConstraint(Sketcher.Constraint("Equal", 49, 69))
sketch1.addConstraint(Sketcher.Constraint("Equal", 65, 73))
sketch1.addConstraint(Sketcher.Constraint("Equal", 61, 77))
sketch1.addConstraint(Sketcher.Constraint("Symmetric", 1, 3, 41, 3, -1, 1))
sketch1.addConstraint(Sketcher.Constraint("Symmetric", 5, 3, 45, 3, -1, 1))
sketch1.addConstraint(Sketcher.Constraint("Symmetric", 9, 3, 49, 3, -1, 1))
sketch1.addConstraint(Sketcher.Constraint("Symmetric", 13, 3, 53, 3, -1, 1))
sketch1.addConstraint(Sketcher.Constraint("Symmetric", 17, 3, 57, 3, -1, 1))
sketch1.addConstraint(Sketcher.Constraint("Symmetric", 21, 3, 61, 3, -1, 1))
sketch1.addConstraint(Sketcher.Constraint("Symmetric", 25, 3, 65, 3, -1, 1))
sketch1.addConstraint(Sketcher.Constraint("Symmetric", 29, 3, 69, 3, -1, 1))
sketch1.addConstraint(Sketcher.Constraint("Symmetric", 33, 3, 73, 3, -1, 1))
sketch1.addConstraint(Sketcher.Constraint("Symmetric", 37, 3, 77, 3, -1, 1))
sketch1.addConstraint(Sketcher.Constraint("Symmetric", 2, 2, 42, 2, -1, 1))
sketch1.addConstraint(Sketcher.Constraint("Symmetric", 3, 2, 43, 2, -1, 1))
sketch1.addConstraint(Sketcher.Constraint("Symmetric", 6, 2, 46, 2, -1, 1))
sketch1.addConstraint(Sketcher.Constraint("Symmetric", 7, 2, 47, 2, -1, 1))
sketch1.addConstraint(Sketcher.Constraint("Symmetric", 10, 2, 50, 2, -1, 1))
sketch1.addConstraint(Sketcher.Constraint("Symmetric", 11, 2, 51, 2, -1, 1))
sketch1.addConstraint(Sketcher.Constraint("Symmetric", 14, 2, 54, 2, -1, 1))
sketch1.addConstraint(Sketcher.Constraint("Symmetric", 15, 2, 55, 2, -1, 1))
sketch1.addConstraint(Sketcher.Constraint("Symmetric", 18, 2, 58, 2, -1, 1))
sketch1.addConstraint(Sketcher.Constraint("Symmetric", 19, 2, 59, 2, -1, 1))
sketch1.addConstraint(Sketcher.Constraint("Symmetric", 22, 2, 62, 2, -1, 1))
sketch1.addConstraint(Sketcher.Constraint("Symmetric", 23, 2, 63, 2, -1, 1))
sketch1.addConstraint(Sketcher.Constraint("Symmetric", 26, 2, 66, 2, -1, 1))
sketch1.addConstraint(Sketcher.Constraint("Symmetric", 27, 2, 67, 2, -1, 1))
sketch1.addConstraint(Sketcher.Constraint("Symmetric", 30, 2, 70, 2, -1, 1))
sketch1.addConstraint(Sketcher.Constraint("Symmetric", 31, 2, 71, 2, -1, 1))
sketch1.addConstraint(Sketcher.Constraint("Symmetric", 34, 2, 74, 2, -1, 1))
sketch1.addConstraint(Sketcher.Constraint("Symmetric", 35, 2, 75, 2, -1, 1))
sketch1.addConstraint(Sketcher.Constraint("Symmetric", 39, 2, 79, 2, -1, 1))
sketch1.addConstraint(Sketcher.Constraint("Symmetric", 37, 3, 41, 3, -2))
sketch1.addConstraint(Sketcher.Constraint("Symmetric", 33, 3, 45, 3, -2))
sketch1.addConstraint(Sketcher.Constraint("Symmetric", 29, 3, 49, 3, -2))
sketch1.addConstraint(Sketcher.Constraint("Symmetric", 25, 3, 53, 3, -2))
sketch1.addConstraint(Sketcher.Constraint("Symmetric", 21, 3, 57, 3, -2))
sketch1.addConstraint(Sketcher.Constraint("Perpendicular", 0, 20))
sketch1.addConstraint(Sketcher.Constraint("Perpendicular", 2, 22))
sketch1.addConstraint(Sketcher.Constraint("Perpendicular", 3, 23))
sketch1.addConstraint(Sketcher.Constraint("Perpendicular", 4, 24))
sketch1.addConstraint(Sketcher.Constraint("Perpendicular", 6, 26))
sketch1.addConstraint(Sketcher.Constraint("Perpendicular", 7, 27))
sketch1.addConstraint(Sketcher.Constraint("Perpendicular", 8, 28))
sketch1.addConstraint(Sketcher.Constraint("Perpendicular", 10, 30))
sketch1.addConstraint(Sketcher.Constraint("Perpendicular", 11, 31))
sketch1.addConstraint(Sketcher.Constraint("Perpendicular", 12, 32))
sketch1.addConstraint(Sketcher.Constraint("Perpendicular", 14, 34))
sketch1.addConstraint(Sketcher.Constraint("Perpendicular", 15, 35))
sketch1.addConstraint(Sketcher.Constraint("Perpendicular", 16, 36))
sketch1.addConstraint(Sketcher.Constraint("Perpendicular", 18, 38))
sketch1.addConstraint(Sketcher.Constraint("Perpendicular", 19, 39))
sketch1.addConstraint(Sketcher.Constraint("Perpendicular", 20, 40))
sketch1.addConstraint(Sketcher.Constraint("Perpendicular", 22, 42))
sketch1.addConstraint(Sketcher.Constraint("Perpendicular", 24, 44))
sketch1.addConstraint(Sketcher.Constraint("Perpendicular", 26, 46))
sketch1.addConstraint(Sketcher.Constraint("Perpendicular", 28, 48))
sketch1.addConstraint(Sketcher.Constraint("Perpendicular", 30, 50))
sketch1.addConstraint(Sketcher.Constraint("Perpendicular", 32, 52))
sketch1.addConstraint(Sketcher.Constraint("Perpendicular", 34, 54))
sketch1.addConstraint(Sketcher.Constraint("Perpendicular", 36, 56))
sketch1.addConstraint(Sketcher.Constraint("Perpendicular", 38, 58))
sketch1.addConstraint(Sketcher.Constraint("Perpendicular", 40, 60))
sketch1.addConstraint(Sketcher.Constraint("Perpendicular", 42, 62))
sketch1.addConstraint(Sketcher.Constraint("Perpendicular", 44, 64))
sketch1.addConstraint(Sketcher.Constraint("Perpendicular", 46, 66))
sketch1.addConstraint(Sketcher.Constraint("Perpendicular", 48, 68))
sketch1.addConstraint(Sketcher.Constraint("Perpendicular", 50, 70))
sketch1.addConstraint(Sketcher.Constraint("Perpendicular", 52, 72))
sketch1.addConstraint(Sketcher.Constraint("Perpendicular", 54, 74))
sketch1.addConstraint(Sketcher.Constraint("Perpendicular", 56, 76))
sketch1.addConstraint(Sketcher.Constraint("Horizontal", 37, 2, 40, 2))
sketch1.addConstraint(Sketcher.Constraint("Horizontal", 36, 2, 41, 2))
sketch1.addConstraint(Sketcher.Constraint("Horizontal", 33, 2, 44, 2))
sketch1.addConstraint(Sketcher.Constraint("Horizontal", 32, 2, 45, 2))
sketch1.addConstraint(Sketcher.Constraint("Horizontal", 29, 2, 48, 2))
sketch1.addConstraint(Sketcher.Constraint("Horizontal", 28, 2, 49, 2))
sketch1.addConstraint(Sketcher.Constraint("Horizontal", 25, 2, 52, 2))
sketch1.addConstraint(Sketcher.Constraint("Horizontal", 24, 2, 53, 2))
sketch1.addConstraint(Sketcher.Constraint("Horizontal", 21, 2, 56, 2))
sketch1.addConstraint(Sketcher.Constraint("Horizontal", 20, 2, 57, 2))
sketch1.addConstraint(Sketcher.Constraint("Horizontal", 0, 2, 77, 2))
sketch1.addConstraint(Sketcher.Constraint("Equal", 0, 4))
sketch1.addConstraint(Sketcher.Constraint("Equal", 2, 6))
sketch1.addConstraint(Sketcher.Constraint("Equal", 3, 7))
sketch1.addConstraint(Sketcher.Constraint("Equal", 4, 8))
sketch1.addConstraint(Sketcher.Constraint("Equal", 6, 10))
sketch1.addConstraint(Sketcher.Constraint("Equal", 7, 11))
sketch1.addConstraint(Sketcher.Constraint("Equal", 8, 12))
sketch1.addConstraint(Sketcher.Constraint("Equal", 10, 14))
sketch1.addConstraint(Sketcher.Constraint("Equal", 11, 15))
sketch1.addConstraint(Sketcher.Constraint("Equal", 12, 16))
sketch1.addConstraint(Sketcher.Constraint("Equal", 14, 18))
sketch1.addConstraint(Sketcher.Constraint("Equal", 15, 19))
sketch1.addConstraint(Sketcher.Constraint("Equal", 16, 20))
sketch1.addConstraint(Sketcher.Constraint("Equal", 18, 22))
sketch1.addConstraint(Sketcher.Constraint("Equal", 19, 23))
sketch1.addConstraint(Sketcher.Constraint("Equal", 20, 24))
sketch1.addConstraint(Sketcher.Constraint("Equal", 22, 26))
sketch1.addConstraint(Sketcher.Constraint("Equal", 23, 27))
sketch1.addConstraint(Sketcher.Constraint("Equal", 24, 28))
sketch1.addConstraint(Sketcher.Constraint("Equal", 26, 30))
sketch1.addConstraint(Sketcher.Constraint("Equal", 30, 34))
sketch1.addConstraint(Sketcher.Constraint("Equal", 34, 38))
sketch1.addConstraint(Sketcher.Constraint("Equal", 74, 78))
sketch1.addConstraint(Sketcher.Constraint("Diameter", 80, Q("0.5 in")))
sketch1.addConstraint(Sketcher.Constraint("Radius", 1, Q("38.099458 mm")))
sketch1.addConstraint(Sketcher.Constraint("Radius", 5, Q("38.098979 mm")))
sketch1.addConstraint(Sketcher.Constraint("Radius", 9, Q("38.101238 mm")))
sketch1.addConstraint(Sketcher.Constraint("Distance", 3, Q("4.366598 mm")))
sketch1.addConstraint(Sketcher.Constraint("DistanceY", -1, 1, 5, 3, Q("0.00091 mm")))
sketch1.addConstraint(Sketcher.Constraint("DistanceX", 13, 3, -1, 1, Q("0.00091 mm")))
sketch1.addConstraint(Sketcher.Constraint("DistanceY", -1, 1, 0, 2, Q("37.822189 mm")))
sketch1.addConstraint(Sketcher.Constraint("DistanceX", 2, 2, -1, 1, Q("10.772221 mm")))
sketch1.addConstraint(Sketcher.Constraint("DistanceX", 3, 2, -1, 1, Q("14.868121 mm")))
sketch1.addConstraint(Sketcher.Constraint("DistanceX", 5, 2, -1, 1, Q("18.515829 mm")))
sketch1.addConstraint(Sketcher.Constraint("DistanceY", -1, 1, 5, 2, Q("33.298259 mm")))
sketch1.addConstraint(Sketcher.Constraint("DistanceX", 6, 2, -1, 1, Q("22.611352 mm")))
sketch1.addConstraint(Sketcher.Constraint("DistanceX", 7, 2, -1, 1, Q("26.039078 mm")))
sketch1.addConstraint(Sketcher.Constraint("DistanceY", -1, 1, 7, 2, Q("32.02579 mm")))
sketch1.addConstraint(Sketcher.Constraint("DistanceX", 8, 2, -1, 1, Q("25.946821 mm")))
sketch1.addConstraint(Sketcher.Constraint("DistanceY", -1, 1, 8, 2, Q("27.899328 mm")))
sketch1.addConstraint(Sketcher.Constraint("DistanceY", -1, 1, 9, 2, Q("25.946821 mm")))
sketch1.addConstraint(Sketcher.Constraint("DistanceY", -1, 1, 11, 2, Q("22.411818 mm")))
sketch1.addConstraint(Sketcher.Constraint("DistanceX", 12, 2, -1, 1, Q("33.298259 mm")))
sketch1.addConstraint(Sketcher.Constraint("DistanceY", -1, 1, 14, 2, Q("14.807308 mm")))
sketch1.addConstraint(Sketcher.Constraint("DistanceX", 16, 2, -1, 1, Q("37.390232 mm")))
sketch1.addConstraint(Sketcher.Constraint("DistanceX", 17, 2, -1, 1, Q("37.822189 mm")))
sketch1.addConstraint(Sketcher.Constraint("DistanceY", -1, 1, 18, 2, Q("2.121371 mm")))
sketch1.addConstraint(Sketcher.Constraint("DistanceY", 22, 2, -1, 1, Q("10.772221 mm")))
sketch1.addConstraint(Sketcher.Constraint("DistanceY", -1, 1, 78, 2, Q("41.388558 mm")))
sketch1.addConstraint(Sketcher.Constraint("Distance", 79, Q("4.366616 mm")))
sketch1.addConstraint(Sketcher.Constraint("DistanceY", -1, 1, 1, 3, Q("0.000536 mm")))
pad1 = doc.addObject("PartDesign::Pad", "Pad")
body.addObject(pad1)
pad1.Profile = sketch1
pad1.Length = Q("0.25 in")

doc.recompute()
